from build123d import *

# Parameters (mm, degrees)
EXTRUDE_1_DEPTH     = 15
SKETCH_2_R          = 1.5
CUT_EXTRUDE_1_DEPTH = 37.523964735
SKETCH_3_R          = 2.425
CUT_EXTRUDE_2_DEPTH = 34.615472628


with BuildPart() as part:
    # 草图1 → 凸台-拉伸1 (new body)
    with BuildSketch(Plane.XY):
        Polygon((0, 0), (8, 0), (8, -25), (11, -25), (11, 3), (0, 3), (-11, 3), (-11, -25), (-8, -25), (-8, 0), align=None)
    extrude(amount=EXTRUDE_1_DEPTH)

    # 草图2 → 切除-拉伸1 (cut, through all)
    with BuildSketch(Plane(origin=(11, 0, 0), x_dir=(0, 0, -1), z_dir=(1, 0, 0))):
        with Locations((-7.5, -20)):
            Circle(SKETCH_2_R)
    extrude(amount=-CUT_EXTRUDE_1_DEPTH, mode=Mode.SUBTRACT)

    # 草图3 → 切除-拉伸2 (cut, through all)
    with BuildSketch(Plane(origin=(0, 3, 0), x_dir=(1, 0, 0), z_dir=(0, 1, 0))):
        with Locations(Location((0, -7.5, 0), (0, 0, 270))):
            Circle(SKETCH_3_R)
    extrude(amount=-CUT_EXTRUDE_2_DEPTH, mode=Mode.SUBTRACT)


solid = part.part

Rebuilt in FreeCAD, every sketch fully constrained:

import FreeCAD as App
import Part
import Sketcher

V = App.Vector
Q = App.Units.Quantity


def add_polygon(sketch, points):
    """Adds a closed chain of lines whose ends are joined by coincident constraints."""
    first, n = sketch.GeometryCount, len(points)
    for a, b in zip(points, points[1:] + points[:1]):
        sketch.addGeometry(Part.LineSegment(App.Vector(*a, 0), App.Vector(*b, 0)), False)
    for i in range(n):
        sketch.addConstraint(Sketcher.Constraint("Coincident", first + i, 2, first + (i + 1) % n, 1))

doc = App.newDocument("Part")
body = doc.addObject("PartDesign::Body", "Body")

sketch1 = doc.addObject("Sketcher::SketchObject", "Sketch")
body.addObject(sketch1)
sketch1.AttachmentSupport = (doc.XY_Plane, [""])
sketch1.MapMode = "FlatFace"
add_polygon(sketch1, [(8, 0), (8, -25), (11, -25), (11, 3), (-11, 3), (-11, -25), (-8, -25), (-8, 0)])
sketch1.addConstraint([
    Sketcher.Constraint("Vertical", 0),
    Sketcher.Constraint("Horizontal", 1),
    Sketcher.Constraint("Vertical", 2),
    Sketcher.Constraint("Horizontal", 3),
    Sketcher.Constraint("Vertical", 4),
    Sketcher.Constraint("Horizontal", 5),
    Sketcher.Constraint("Vertical", 6),
    Sketcher.Constraint("Horizontal", 7),
    Sketcher.Constraint("Symmetric", 6, 2, 7, 2, -1, 1),
    Sketcher.Constraint("Symmetric", 1, 2, 4, 2, -2),
    Sketcher.Constraint("DistanceX", 1, 1, 1, 2, Q("3 mm")),
    Sketcher.Constraint("DistanceX", 3, 2, 3, 1, Q("22 mm")),
    Sketcher.Constraint("DistanceY", 0, 2, 0, 1, Q("25 mm")),
    Sketcher.Constraint("DistanceY", 2, 1, 2, 2, Q("28 mm")),
])
pad1 = doc.addObject("PartDesign::Pad", "Pad")
body.addObject(pad1)
pad1.Profile = sketch1
pad1.Length = 15

sketch2 = doc.addObject("Sketcher::SketchObject", "Sketch001")
body.addObject(sketch2)
sketch2.AttachmentSupport = (doc.YZ_Plane, [""])
sketch2.MapMode = "FlatFace"
sketch2.AttachmentOffset = App.Placement(V(0, 0, 11), App.Rotation())
sketch2.addGeometry(Part.Circle(V(-20, 7.5, 0), V(0, 0, 1), 1.5), False)
sketch2.addConstraint([
    Sketcher.Constraint("Diameter", 0, Q("3 mm")),
    Sketcher.Constraint("DistanceX", 0, 3, -1, 1, Q("20 mm")),
    Sketcher.Constraint("DistanceY", -1, 1, 0, 3, Q("7.5 mm")),
])
pocket1 = doc.addObject("PartDesign::Pocket", "Pocket")
body.addObject(pocket1)
pocket1.Profile = sketch2
pocket1.Type = "ThroughAll"

sketch3 = doc.addObject("Sketcher::SketchObject", "Sketch002")
body.addObject(sketch3)
sketch3.AttachmentSupport = (doc.XZ_Plane, [""])
sketch3.MapMode = "FlatFace"
sketch3.AttachmentOffset = App.Placement(V(0, 0, -3), App.Rotation())
sketch3.addGeometry(Part.Circle(V(0, 7.5, 0), V(0, 0, 1), 2.4), False)
sketch3.addConstraint([
    Sketcher.Constraint("PointOnObject", 0, 3, -2),
    Sketcher.Constraint("Diameter", 0, Q("4.85 mm")),
    Sketcher.Constraint("DistanceY", -1, 1, 0, 3, Q("7.5 mm")),
])
pocket2 = doc.addObject("PartDesign::Pocket", "Pocket001")
body.addObject(pocket2)
pocket2.Profile = sketch3
pocket2.Type = "ThroughAll"
pocket2.Reversed = True

doc.recompute()
